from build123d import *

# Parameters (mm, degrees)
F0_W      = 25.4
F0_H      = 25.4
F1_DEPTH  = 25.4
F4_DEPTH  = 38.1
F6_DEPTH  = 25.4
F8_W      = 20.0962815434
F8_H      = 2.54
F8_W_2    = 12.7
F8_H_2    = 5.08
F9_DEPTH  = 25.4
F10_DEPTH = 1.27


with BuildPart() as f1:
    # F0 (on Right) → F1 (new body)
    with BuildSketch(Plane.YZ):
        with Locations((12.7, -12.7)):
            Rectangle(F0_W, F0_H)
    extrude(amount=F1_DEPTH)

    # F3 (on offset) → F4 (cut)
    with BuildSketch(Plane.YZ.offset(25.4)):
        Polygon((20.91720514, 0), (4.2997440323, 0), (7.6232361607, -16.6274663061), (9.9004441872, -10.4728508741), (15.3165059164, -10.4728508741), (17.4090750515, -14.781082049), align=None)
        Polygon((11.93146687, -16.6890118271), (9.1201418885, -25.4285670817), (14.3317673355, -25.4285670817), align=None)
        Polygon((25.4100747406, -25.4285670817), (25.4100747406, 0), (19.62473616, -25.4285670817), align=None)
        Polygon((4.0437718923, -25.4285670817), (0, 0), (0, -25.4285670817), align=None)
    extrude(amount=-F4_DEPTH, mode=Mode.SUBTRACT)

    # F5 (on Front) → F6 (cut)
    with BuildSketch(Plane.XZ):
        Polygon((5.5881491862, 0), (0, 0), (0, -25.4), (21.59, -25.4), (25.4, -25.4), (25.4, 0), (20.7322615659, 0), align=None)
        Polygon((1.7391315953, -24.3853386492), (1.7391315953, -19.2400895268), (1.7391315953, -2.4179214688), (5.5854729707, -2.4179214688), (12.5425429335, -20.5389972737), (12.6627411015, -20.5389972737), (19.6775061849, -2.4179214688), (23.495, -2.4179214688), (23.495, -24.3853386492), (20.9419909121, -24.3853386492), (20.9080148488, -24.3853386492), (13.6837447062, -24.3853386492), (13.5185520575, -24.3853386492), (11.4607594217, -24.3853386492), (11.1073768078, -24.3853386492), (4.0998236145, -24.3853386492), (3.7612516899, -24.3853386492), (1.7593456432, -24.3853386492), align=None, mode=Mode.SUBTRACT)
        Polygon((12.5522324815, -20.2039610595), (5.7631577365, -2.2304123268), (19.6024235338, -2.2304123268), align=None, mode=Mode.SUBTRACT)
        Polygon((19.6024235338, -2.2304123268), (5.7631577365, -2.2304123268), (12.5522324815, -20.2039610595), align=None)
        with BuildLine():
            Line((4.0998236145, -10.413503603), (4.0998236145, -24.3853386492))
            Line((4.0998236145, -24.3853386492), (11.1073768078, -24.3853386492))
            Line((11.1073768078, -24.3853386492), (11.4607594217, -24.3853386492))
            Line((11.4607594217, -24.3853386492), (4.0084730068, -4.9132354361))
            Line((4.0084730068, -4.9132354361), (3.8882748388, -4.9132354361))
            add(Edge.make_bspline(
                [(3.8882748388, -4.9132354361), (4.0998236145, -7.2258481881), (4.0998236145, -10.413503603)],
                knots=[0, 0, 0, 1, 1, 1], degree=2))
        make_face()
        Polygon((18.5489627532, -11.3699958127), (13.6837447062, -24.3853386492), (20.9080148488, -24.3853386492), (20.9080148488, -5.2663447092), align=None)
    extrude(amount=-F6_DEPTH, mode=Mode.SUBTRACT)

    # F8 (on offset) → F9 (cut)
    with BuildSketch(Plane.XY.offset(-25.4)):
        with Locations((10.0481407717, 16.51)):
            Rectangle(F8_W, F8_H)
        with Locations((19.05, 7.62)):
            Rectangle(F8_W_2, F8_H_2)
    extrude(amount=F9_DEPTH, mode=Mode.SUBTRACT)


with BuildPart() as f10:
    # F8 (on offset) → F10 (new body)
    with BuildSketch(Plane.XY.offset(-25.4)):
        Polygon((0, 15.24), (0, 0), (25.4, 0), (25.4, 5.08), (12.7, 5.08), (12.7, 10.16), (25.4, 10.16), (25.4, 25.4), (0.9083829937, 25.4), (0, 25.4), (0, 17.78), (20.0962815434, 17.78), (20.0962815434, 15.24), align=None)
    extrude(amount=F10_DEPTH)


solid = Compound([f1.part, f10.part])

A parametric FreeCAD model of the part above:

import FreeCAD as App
import Part
import Sketcher
Q = App.Units.Quantity


def add_polygon(sketch, points):
    """Adds a closed chain of lines whose ends are joined by coincident constraints."""
    first, n = sketch.GeometryCount, len(points)
    for a, b in zip(points, points[1:] + points[:1]):
        sketch.addGeometry(Part.LineSegment(App.Vector(*a, 0), App.Vector(*b, 0)), False)
    for i in range(n):
        sketch.addConstraint(Sketcher.Constraint("Coincident", first + i, 2, first + (i + 1) % n, 1))

doc = App.newDocument("Part")
body = doc.addObject("PartDesign::Body", "Body")
body.AllowCompound = True

# Sketch on YZ plane
sketch1 = doc.addObject("Sketcher::SketchObject", "Sketch")
body.addObject(sketch1)
sketch1.AttachmentSupport = (doc.YZ_Plane, [""])
sketch1.MapMode = "FlatFace"
add_polygon(sketch1, [(0, 0), (0, -25.4), (25.4, -25.4), (25.4, 0)])  # lines 0-3
sketch1.addConstraint(Sketcher.Constraint("Vertical", 0))
sketch1.addConstraint(Sketcher.Constraint("Horizontal", 1))
sketch1.addConstraint(Sketcher.Constraint("Vertical", 2))
sketch1.addConstraint(Sketcher.Constraint("Horizontal", 3))
sketch1.addConstraint(Sketcher.Constraint("Coincident", 3, 2, -1, 1))
sketch1.addConstraint(Sketcher.Constraint("Equal", 3, 0))
sketch1.addConstraint(Sketcher.Constraint("DistanceX", 1, 1, 1, 2, Q("1 in")))
pad1 = doc.addObject("PartDesign::Pad", "Pad")
body.addObject(pad1)
pad1.Profile = sketch1
pad1.Length = Q("1 in")

# Sketch on YZ plane
sketch2 = doc.addObject("Sketcher::SketchObject", "Sketch001")
body.addObject(sketch2)
sketch2.AttachmentSupport = (doc.YZ_Plane, [""])
sketch2.MapMode = "FlatFace"
sketch2.AttachmentOffset = App.Placement(App.Vector(0, 0, 1 * 25.4), App.Rotation())
add_polygon(sketch2, [(20.917205, 0), (4.299744, 0), (7.623236, -16.627466), (9.900444, -10.472851), (15.316506, -10.472851), (17.409075, -14.781082)])  # lines 0-5
add_polygon(sketch2, [(11.931467, -16.689012), (9.120142, -25.428567), (14.331767, -25.428567)])  # lines 6-8
add_polygon(sketch2, [(25.410075, -25.428567), (25.410075, 0), (19.624736, -25.428567)])  # lines 9-11
add_polygon(sketch2, [(4.043772, -25.428567), (0, 0), (0, -25.428567)])  # lines 12-14
sketch2.addConstraint(Sketcher.Constraint("Horizontal", 0))
sketch2.addConstraint(Sketcher.Constraint("Horizontal", 3))
sketch2.addConstraint(Sketcher.Constraint("Horizontal", 7))
sketch2.addConstraint(Sketcher.Constraint("Vertical", 9))
sketch2.addConstraint(Sketcher.Constraint("Horizontal", 11))
sketch2.addConstraint(Sketcher.Constraint("Vertical", 13))
sketch2.addConstraint(Sketcher.Constraint("Horizontal", 14))
sketch2.addConstraint(Sketcher.Constraint("Coincident", 12, 2, -1, 1))
sketch2.addConstraint(Sketcher.Constraint("PointOnObject", 0, 2, -1))
sketch2.addConstraint(Sketcher.Constraint("PointOnObject", 9, 2, -1))
sketch2.addConstraint(Sketcher.Constraint("Horizontal", 7, 2, 10, 2))
sketch2.addConstraint(Sketcher.Constraint("Horizontal", 11, 2, 13, 2))
sketch2.addConstraint(Sketcher.Constraint("DistanceX", 4, 2, 9, 2, Q("0.315 in")))
sketch2.addConstraint(Sketcher.Constraint("DistanceX", 0, 2, 2, 2, Q("0.2205 in")))
sketch2.addConstraint(Sketcher.Constraint("DistanceX", 3, 2, 5, 2, Q("0.2205 in")))
sketch2.addConstraint(Sketcher.Constraint("DistanceY", 6, 2, 1, 2, Q("0.3465 in")))
sketch2.addConstraint(Sketcher.Constraint("DistanceX", 8, 2, 7, 2, Q("0.0945 in")))
sketch2.addConstraint(Sketcher.Constraint("DistanceX", 1, 2, 10, 2, Q("0.4725 in")))
sketch2.addConstraint(Sketcher.Constraint("DistanceX", 0, 2, 0, 1, Q("16.617461 mm")))
sketch2.addConstraint(Sketcher.Constraint("DistanceX", 11, 1, 11, 2, Q("5.785339 mm")))
sketch2.addConstraint(Sketcher.Constraint("DistanceX", 14, 1, 14, 2, Q("4.043772 mm")))
sketch2.addConstraint(Sketcher.Constraint("Distance", 2, Q("6.56239 mm")))
sketch2.addConstraint(Sketcher.Constraint("Distance", 4, Q("4.789541 mm")))
sketch2.addConstraint(Sketcher.Constraint("Distance", 12, Q("25.74809 mm")))
sketch2.addConstraint(Sketcher.Constraint("DistanceX", 7, 1, 7, 2, Q("5.211625 mm")))
sketch2.addConstraint(Sketcher.Constraint("DistanceY", 2, 2, -1, 1, Q("10.472851 mm")))
sketch2.addConstraint(Sketcher.Constraint("DistanceX", -1, 1, 6, 2, Q("9.120142 mm")))
sketch2.addConstraint(Sketcher.Constraint("DistanceY", 8, 2, -1, 1, Q("16.689012 mm")))
sketch2.addConstraint(Sketcher.Constraint("DistanceX", 1, 2, 7, 2, Q("6.708531 mm")))
pocket1 = doc.addObject("PartDesign::Pocket", "Pocket")
body.addObject(pocket1)
pocket1.Profile = sketch2
pocket1.Length = Q("1.5 in")

# Sketch on XZ plane
sketch3 = doc.addObject("Sketcher::SketchObject", "Sketch002")
body.addObject(sketch3)
sketch3.AttachmentSupport = (doc.XZ_Plane, [""])
sketch3.MapMode = "FlatFace"
add_polygon(sketch3, [(0, 0), (0, -25.4), (25.4, -25.4), (25.4, 0)])  # lines 0-3
sketch3.addGeometry(Part.LineSegment(App.Vector(23.495, -24.385339, 0), App.Vector(20.908015, -24.385339, 0)), False)  # 4
sketch3.addGeometry(Part.LineSegment(App.Vector(20.908015, -24.385339, 0), App.Vector(20.908015, -5.266345, 0)), False)  # 5
sketch3.addGeometry(Part.LineSegment(App.Vector(20.908015, -5.266345, 0), App.Vector(18.548963, -11.369996, 0)), False)  # 6
sketch3.addGeometry(Part.LineSegment(App.Vector(18.548963, -11.369996, 0), App.Vector(13.683745, -24.385339, 0)), False)  # 7
sketch3.addGeometry(Part.LineSegment(App.Vector(13.683745, -24.385339, 0), App.Vector(11.460759, -24.385339, 0)), False)  # 8
sketch3.addGeometry(Part.LineSegment(App.Vector(11.460759, -24.385339, 0), App.Vector(4.008473, -4.913235, 0)), False)  # 9
sketch3.addGeometry(Part.LineSegment(App.Vector(4.008473, -4.913235, 0), App.Vector(3.888275, -4.913235, 0)), False)  # 10
sketch3.addGeometry(Part.BSplineCurve([App.Vector(3.888275, -4.913235, 0), App.Vector(4.099824, -7.225848, 0), App.Vector(4.099824, -10.413504, 0)], [3, 3], [0, 1], False, 2, [1, 1, 1], False), False)  # 11
sketch3.addGeometry(Part.LineSegment(App.Vector(4.099824, -10.413504, 0), App.Vector(4.099824, -24.385339, 0)), False)  # 12
sketch3.addGeometry(Part.LineSegment(App.Vector(4.099824, -24.385339, 0), App.Vector(1.739132, -24.385339, 0)), False)  # 13
sketch3.addGeometry(Part.LineSegment(App.Vector(1.739132, -24.385339, 0), App.Vector(1.739132, -2.417921, 0)), False)  # 14
sketch3.addGeometry(Part.LineSegment(App.Vector(1.739132, -2.417921, 0), App.Vector(5.585473, -2.417921, 0)), False)  # 15
sketch3.addGeometry(Part.LineSegment(App.Vector(5.585473, -2.417921, 0), App.Vector(12.542543, -20.538997, 0)), False)  # 16
sketch3.addGeometry(Part.LineSegment(App.Vector(12.542543, -20.538997, 0), App.Vector(12.662741, -20.538997, 0)), False)  # 17
sketch3.addGeometry(Part.LineSegment(App.Vector(12.662741, -20.538997, 0), App.Vector(19.677506, -2.417921, 0)), False)  # 18
sketch3.addGeometry(Part.LineSegment(App.Vector(19.677506, -2.417921, 0), App.Vector(23.495, -2.417921, 0)), False)  # 19
sketch3.addGeometry(Part.LineSegment(App.Vector(23.495, -2.417921, 0), App.Vector(23.495, -24.385339, 0)), False)  # 20
sketch3.addConstraint(Sketcher.Constraint("Block", 11))
sketch3.addConstraint(Sketcher.Constraint("Coincident", 4, 2, 5, 1))
sketch3.addConstraint(Sketcher.Constraint("Coincident", 5, 2, 6, 1))
sketch3.addConstraint(Sketcher.Constraint("Coincident", 6, 2, 7, 1))
sketch3.addConstraint(Sketcher.Constraint("Coincident", 7, 2, 8, 1))
sketch3.addConstraint(Sketcher.Constraint("Coincident", 8, 2, 9, 1))
sketch3.addConstraint(Sketcher.Constraint("Coincident", 9, 2, 10, 1))
sketch3.addConstraint(Sketcher.Constraint("Coincident", 10, 2, 11, 1))
sketch3.addConstraint(Sketcher.Constraint("Coincident", 11, 2, 12, 1))
sketch3.addConstraint(Sketcher.Constraint("Coincident", 12, 2, 13, 1))
sketch3.addConstraint(Sketcher.Constraint("Coincident", 13, 2, 14, 1))
sketch3.addConstraint(Sketcher.Constraint("Coincident", 14, 2, 15, 1))
sketch3.addConstraint(Sketcher.Constraint("Coincident", 15, 2, 16, 1))
sketch3.addConstraint(Sketcher.Constraint("Coincident", 16, 2, 17, 1))
sketch3.addConstraint(Sketcher.Constraint("Coincident", 17, 2, 18, 1))
sketch3.addConstraint(Sketcher.Constraint("Coincident", 18, 2, 19, 1))
sketch3.addConstraint(Sketcher.Constraint("Coincident", 19, 2, 20, 1))
sketch3.addConstraint(Sketcher.Constraint("Coincident", 20, 2, 4, 1))
sketch3.addConstraint(Sketcher.Constraint("Vertical", 0))
sketch3.addConstraint(Sketcher.Constraint("Horizontal", 1))
sketch3.addConstraint(Sketcher.Constraint("Vertical", 2))
sketch3.addConstraint(Sketcher.Constraint("Horizontal", 3))
sketch3.addConstraint(Sketcher.Constraint("Horizontal", 4))
sketch3.addConstraint(Sketcher.Constraint("Vertical", 5))
sketch3.addConstraint(Sketcher.Constraint("Horizontal", 8))
sketch3.addConstraint(Sketcher.Constraint("Horizontal", 10))
sketch3.addConstraint(Sketcher.Constraint("Vertical", 12))
sketch3.addConstraint(Sketcher.Constraint("Horizontal", 13))
sketch3.addConstraint(Sketcher.Constraint("Vertical", 14))
sketch3.addConstraint(Sketcher.Constraint("Horizontal", 15))
sketch3.addConstraint(Sketcher.Constraint("Horizontal", 17))
sketch3.addConstraint(Sketcher.Constraint("Horizontal", 19))
sketch3.addConstraint(Sketcher.Constraint("Vertical", 20))
sketch3.addConstraint(Sketcher.Constraint("Coincident", 3, 2, -1, 1))
sketch3.addConstraint(Sketcher.Constraint("Horizontal", 4, 2, 7, 2))
sketch3.addConstraint(Sketcher.Constraint("Horizontal", 8, 2, 12, 2))
sketch3.addConstraint(Sketcher.Constraint("Horizontal", 15, 2, 18, 2))
sketch3.addConstraint(Sketcher.Constraint("Equal", 10, 17))
sketch3.addConstraint(Sketcher.Constraint("Equal", 3, 0))
sketch3.addConstraint(Sketcher.Constraint("DistanceX", 1, 1, 1, 2, Q("1 in")))
sketch3.addConstraint(Sketcher.Constraint("DistanceX", -1, 1, 19, 2, Q("0.925 in")))
sketch3.addConstraint(Sketcher.Constraint("DistanceX", 10, 2, 10, 1, Q("0.120198 mm")))
sketch3.addConstraint(Sketcher.Constraint("DistanceX", 15, 1, 15, 2, Q("3.846341 mm")))
sketch3.addConstraint(Sketcher.Constraint("DistanceX", 9, 2, 15, 2, Q("1.577 mm")))
sketch3.addConstraint(Sketcher.Constraint("DistanceX", 16, 2, 7, 2, Q("1.141202 mm")))
sketch3.addConstraint(Sketcher.Constraint("DistanceY", 16, 2, 6, 2, Q("9.169001 mm")))
sketch3.addConstraint(Sketcher.Constraint("DistanceX", 4, 2, 4, 1, Q("2.586985 mm")))
sketch3.addConstraint(Sketcher.Constraint("DistanceX", 8, 2, 8, 1, Q("2.222985 mm")))
sketch3.addConstraint(Sketcher.Constraint("DistanceX", 19, 1, 19, 2, Q("3.817494 mm")))
sketch3.addConstraint(Sketcher.Constraint("DistanceY", 5, 1, 5, 2, Q("19.118994 mm")))
sketch3.addConstraint(Sketcher.Constraint("DistanceY", 12, 2, 12, 1, Q("13.971835 mm")))
sketch3.addConstraint(Sketcher.Constraint("DistanceY", 14, 1, 14, 2, Q("21.967417 mm")))
sketch3.addConstraint(Sketcher.Constraint("DistanceX", -1, 1, 8, 2, Q("11.460759 mm")))
sketch3.addConstraint(Sketcher.Constraint("DistanceY", 6, 2, 5, 2, Q("6.103651 mm")))
sketch3.addConstraint(Sketcher.Constraint("DistanceX", 7, 2, 6, 2, Q("4.865218 mm")))
pocket2 = doc.addObject("PartDesign::Pocket", "Pocket001")
body.addObject(pocket2)
pocket2.Profile = sketch3
pocket2.Length = Q("1 in")

# Sketch on XY plane
sketch4 = doc.addObject("Sketcher::SketchObject", "Sketch003")
body.addObject(sketch4)
sketch4.AttachmentSupport = (doc.XY_Plane, [""])
sketch4.MapMode = "FlatFace"
sketch4.AttachmentOffset = App.Placement(App.Vector(0, 0, -1 * 25.4), App.Rotation())
add_polygon(sketch4, [(0, 17.78), (0, 15.24), (20.096282, 15.24), (20.096282, 17.78)])  # lines 0-3
add_polygon(sketch4, [(12.7, 10.16), (12.7, 5.08), (25.4, 5.08), (25.4, 10.16)])  # lines 4-7
sketch4.addConstraint(Sketcher.Constraint("Vertical", 0))
sketch4.addConstraint(Sketcher.Constraint("Horizontal", 1))
sketch4.addConstraint(Sketcher.Constraint("Vertical", 2))
sketch4.addConstraint(Sketcher.Constraint("Horizontal", 3))
sketch4.addConstraint(Sketcher.Constraint("Vertical", 4))
sketch4.addConstraint(Sketcher.Constraint("Horizontal", 5))
sketch4.addConstraint(Sketcher.Constraint("Vertical", 6))
sketch4.addConstraint(Sketcher.Constraint("Horizontal", 7))
sketch4.addConstraint(Sketcher.Constraint("PointOnObject", 0, 2, -2))
sketch4.addConstraint(Sketcher.Constraint("DistanceX", 5, 1, 5, 2, Q("0.5 in")))
sketch4.addConstraint(Sketcher.Constraint("DistanceY", 0, 2, 0, 1, Q("0.1 in")))
sketch4.addConstraint(Sketcher.Constraint("DistanceY", 4, 2, 4, 1, Q("0.2 in")))
sketch4.addConstraint(Sketcher.Constraint("DistanceX", -1, 1, 5, 2, Q("1 in")))
sketch4.addConstraint(Sketcher.Constraint("DistanceY", -1, 1, 0, 2, Q("0.6 in")))
sketch4.addConstraint(Sketcher.Constraint("DistanceY", -1, 1, 4, 2, Q("0.2 in")))
sketch4.addConstraint(Sketcher.Constraint("DistanceX", 1, 1, 1, 2, Q("20.096282 mm")))
pocket3 = doc.addObject("PartDesign::Pocket", "Pocket002")
body.addObject(pocket3)
pocket3.Profile = sketch4
pocket3.Length = Q("1 in")
pocket3.Reversed = True
body2 = doc.addObject("PartDesign::Body", "Body001")

# Sketch on XY plane
sketch5 = doc.addObject("Sketcher::SketchObject", "Sketch004")
body2.addObject(sketch5)
sketch5.AttachmentSupport = (doc.getObject("XY_Plane001"), [""])
sketch5.MapMode = "FlatFace"
sketch5.AttachmentOffset = App.Placement(App.Vector(0, 0, -1 * 25.4), App.Rotation())
add_polygon(sketch5, [(0, 15.24), (0, 0), (25.4, 0), (25.4, 5.08), (12.7, 5.08), (12.7, 10.16), (25.4, 10.16), (25.4, 25.4), (0, 25.4), (0, 17.78), (20.096282, 17.78), (20.096282, 15.24)])  # lines 0-11
sketch5.addConstraint(Sketcher.Constraint("Vertical", 0))
sketch5.addConstraint(Sketcher.Constraint("Horizontal", 1))
sketch5.addConstraint(Sketcher.Constraint("Vertical", 2))
sketch5.addConstraint(Sketcher.Constraint("Horizontal", 3))
sketch5.addConstraint(Sketcher.Constraint("Vertical", 4))
sketch5.addConstraint(Sketcher.Constraint("Horizontal", 5))
sketch5.addConstraint(Sketcher.Constraint("Vertical", 6))
sketch5.addConstraint(Sketcher.Constraint("Horizontal", 7))
sketch5.addConstraint(Sketcher.Constraint("Vertical", 8))
sketch5.addConstraint(Sketcher.Constraint("Horizontal", 9))
sketch5.addConstraint(Sketcher.Constraint("Vertical", 10))
sketch5.addConstraint(Sketcher.Constraint("Horizontal", 11))
sketch5.addConstraint(Sketcher.Constraint("Coincident", 0, 2, -1, 1))
sketch5.addConstraint(Sketcher.Constraint("PointOnObject", 7, 2, -2))
sketch5.addConstraint(Sketcher.Constraint("Vertical", 2, 2, 5, 2))
sketch5.addConstraint(Sketcher.Constraint("Equal", 2, 4))
sketch5.addConstraint(Sketcher.Constraint("Equal", 0, 6))
sketch5.addConstraint(Sketcher.Constraint("DistanceX", 1, 1, 1, 2, Q("1 in")))
sketch5.addConstraint(Sketcher.Constraint("DistanceX", 3, 2, 3, 1, Q("0.5 in")))
sketch5.addConstraint(Sketcher.Constraint("DistanceY", 0, 2, 0, 1, Q("0.6 in")))
sketch5.addConstraint(Sketcher.Constraint("DistanceY", 2, 1, 2, 2, Q("0.2 in")))
sketch5.addConstraint(Sketcher.Constraint("DistanceY", 8, 2, 8, 1, Q("0.3 in")))
sketch5.addConstraint(Sketcher.Constraint("DistanceX", 9, 1, 9, 2, Q("20.096282 mm")))
pad2 = doc.addObject("PartDesign::Pad", "Pad001")
body2.addObject(pad2)
pad2.Profile = sketch5
pad2.Length = Q("0.05 in")

doc.recompute()
